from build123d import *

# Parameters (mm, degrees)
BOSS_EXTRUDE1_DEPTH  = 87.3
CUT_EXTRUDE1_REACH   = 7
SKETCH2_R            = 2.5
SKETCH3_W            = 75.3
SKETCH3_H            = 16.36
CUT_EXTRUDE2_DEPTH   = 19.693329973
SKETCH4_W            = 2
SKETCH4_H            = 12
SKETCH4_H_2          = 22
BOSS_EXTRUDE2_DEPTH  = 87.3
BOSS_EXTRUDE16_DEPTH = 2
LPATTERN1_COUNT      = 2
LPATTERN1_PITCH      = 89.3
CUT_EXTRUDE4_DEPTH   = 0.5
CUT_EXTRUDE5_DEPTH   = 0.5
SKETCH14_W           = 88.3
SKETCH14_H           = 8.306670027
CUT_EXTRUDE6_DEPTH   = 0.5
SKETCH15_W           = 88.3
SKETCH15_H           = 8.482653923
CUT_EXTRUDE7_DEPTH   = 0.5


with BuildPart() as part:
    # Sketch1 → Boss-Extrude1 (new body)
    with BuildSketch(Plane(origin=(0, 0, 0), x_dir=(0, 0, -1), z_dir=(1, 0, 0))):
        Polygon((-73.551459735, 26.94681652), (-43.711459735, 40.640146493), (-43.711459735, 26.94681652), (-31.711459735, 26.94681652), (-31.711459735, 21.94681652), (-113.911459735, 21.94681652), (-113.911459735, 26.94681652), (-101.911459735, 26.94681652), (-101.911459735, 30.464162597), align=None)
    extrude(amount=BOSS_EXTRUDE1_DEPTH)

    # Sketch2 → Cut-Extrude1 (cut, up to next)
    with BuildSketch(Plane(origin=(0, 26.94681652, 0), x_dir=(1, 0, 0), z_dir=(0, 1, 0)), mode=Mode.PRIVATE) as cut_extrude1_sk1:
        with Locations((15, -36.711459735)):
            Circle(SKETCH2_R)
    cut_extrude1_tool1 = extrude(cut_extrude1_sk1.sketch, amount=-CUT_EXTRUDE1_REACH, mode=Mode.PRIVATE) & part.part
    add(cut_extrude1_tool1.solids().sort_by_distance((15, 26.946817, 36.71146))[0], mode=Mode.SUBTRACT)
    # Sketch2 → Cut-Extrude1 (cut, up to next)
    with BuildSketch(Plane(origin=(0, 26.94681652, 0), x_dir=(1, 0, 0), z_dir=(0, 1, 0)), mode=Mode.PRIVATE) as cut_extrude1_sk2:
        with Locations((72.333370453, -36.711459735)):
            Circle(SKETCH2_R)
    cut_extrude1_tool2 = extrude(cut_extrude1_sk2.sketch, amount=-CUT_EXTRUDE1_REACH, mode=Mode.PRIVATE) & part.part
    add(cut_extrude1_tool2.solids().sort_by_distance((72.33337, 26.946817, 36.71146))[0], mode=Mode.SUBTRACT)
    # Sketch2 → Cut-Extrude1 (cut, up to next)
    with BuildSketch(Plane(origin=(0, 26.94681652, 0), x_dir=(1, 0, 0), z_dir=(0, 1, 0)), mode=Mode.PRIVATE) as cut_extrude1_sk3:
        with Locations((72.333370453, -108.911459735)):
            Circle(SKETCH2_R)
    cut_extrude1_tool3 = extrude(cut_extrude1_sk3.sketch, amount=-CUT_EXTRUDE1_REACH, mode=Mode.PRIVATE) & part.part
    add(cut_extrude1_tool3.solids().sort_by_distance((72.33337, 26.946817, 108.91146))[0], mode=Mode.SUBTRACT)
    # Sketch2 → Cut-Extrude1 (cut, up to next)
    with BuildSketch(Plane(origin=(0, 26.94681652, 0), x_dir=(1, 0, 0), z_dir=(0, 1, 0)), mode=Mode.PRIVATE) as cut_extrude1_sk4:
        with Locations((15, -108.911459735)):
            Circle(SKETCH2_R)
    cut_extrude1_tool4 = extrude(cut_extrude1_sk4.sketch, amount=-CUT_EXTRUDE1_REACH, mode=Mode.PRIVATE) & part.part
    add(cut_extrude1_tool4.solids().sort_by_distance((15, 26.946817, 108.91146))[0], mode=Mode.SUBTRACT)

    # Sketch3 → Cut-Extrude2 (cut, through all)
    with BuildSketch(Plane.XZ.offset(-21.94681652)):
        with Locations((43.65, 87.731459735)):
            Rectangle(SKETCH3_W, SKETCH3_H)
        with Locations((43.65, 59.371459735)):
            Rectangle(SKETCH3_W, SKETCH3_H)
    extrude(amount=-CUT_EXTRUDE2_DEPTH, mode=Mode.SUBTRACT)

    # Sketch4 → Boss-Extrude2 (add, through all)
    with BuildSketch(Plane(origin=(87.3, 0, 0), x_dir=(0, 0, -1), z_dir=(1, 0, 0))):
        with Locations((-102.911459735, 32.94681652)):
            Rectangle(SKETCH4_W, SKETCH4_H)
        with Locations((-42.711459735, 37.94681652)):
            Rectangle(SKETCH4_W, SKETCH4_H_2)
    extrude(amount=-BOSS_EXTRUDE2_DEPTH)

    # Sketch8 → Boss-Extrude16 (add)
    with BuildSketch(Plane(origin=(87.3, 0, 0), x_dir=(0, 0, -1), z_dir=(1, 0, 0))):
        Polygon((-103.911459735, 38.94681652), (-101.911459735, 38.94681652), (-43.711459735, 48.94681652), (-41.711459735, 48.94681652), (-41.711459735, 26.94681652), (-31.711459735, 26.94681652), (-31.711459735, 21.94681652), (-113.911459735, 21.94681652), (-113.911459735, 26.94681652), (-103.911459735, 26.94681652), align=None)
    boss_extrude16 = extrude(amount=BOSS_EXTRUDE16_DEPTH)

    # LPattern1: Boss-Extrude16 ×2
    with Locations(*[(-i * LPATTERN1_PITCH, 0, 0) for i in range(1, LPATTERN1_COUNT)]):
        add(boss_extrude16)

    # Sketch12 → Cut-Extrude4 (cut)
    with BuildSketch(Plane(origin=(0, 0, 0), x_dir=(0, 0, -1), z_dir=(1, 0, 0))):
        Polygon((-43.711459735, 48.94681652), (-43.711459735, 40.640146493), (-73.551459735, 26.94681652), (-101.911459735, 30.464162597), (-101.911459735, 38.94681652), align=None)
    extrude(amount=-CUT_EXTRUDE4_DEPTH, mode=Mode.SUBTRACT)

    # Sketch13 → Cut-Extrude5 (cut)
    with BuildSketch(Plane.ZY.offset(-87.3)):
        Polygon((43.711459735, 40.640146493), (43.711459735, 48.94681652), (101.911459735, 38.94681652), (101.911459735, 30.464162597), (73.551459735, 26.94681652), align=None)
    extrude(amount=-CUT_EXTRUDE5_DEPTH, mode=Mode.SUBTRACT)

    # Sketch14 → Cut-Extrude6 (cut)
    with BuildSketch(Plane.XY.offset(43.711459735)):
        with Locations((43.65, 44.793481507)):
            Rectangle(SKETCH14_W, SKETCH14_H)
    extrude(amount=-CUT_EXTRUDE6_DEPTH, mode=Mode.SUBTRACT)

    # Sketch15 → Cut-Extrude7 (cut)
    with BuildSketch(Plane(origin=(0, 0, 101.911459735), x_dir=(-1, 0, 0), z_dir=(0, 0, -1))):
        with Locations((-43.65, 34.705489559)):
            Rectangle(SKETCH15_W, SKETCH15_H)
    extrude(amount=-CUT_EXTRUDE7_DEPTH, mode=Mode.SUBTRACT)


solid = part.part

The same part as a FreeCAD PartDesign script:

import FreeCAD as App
import Part
import Sketcher
Q = App.Units.Quantity

doc = App.newDocument("Part")
body = doc.addObject("PartDesign::Body", "Body")

# Sketch on YZ plane
sketch1 = doc.addObject("Sketcher::SketchObject", "Sketch")
body.addObject(sketch1)
sketch1.AttachmentSupport = (doc.YZ_Plane, [""])
sketch1.MapMode = "FlatFace"
sketch1.addGeometry([
    Part.LineSegment(App.Vector(40.6, 43.7, 0), App.Vector(26.9, 73.6, 0)),  # 0
    Part.LineSegment(App.Vector(26.9, 73.6, 0), App.Vector(30.5, 101.9, 0)),  # 1
    Part.LineSegment(App.Vector(30.5, 101.9, 0), App.Vector(26.9, 101.9, 0)),  # 2
    Part.LineSegment(App.Vector(26.9, 101.9, 0), App.Vector(26.9, 113.9, 0)),  # 3
    Part.LineSegment(App.Vector(26.9, 113.9, 0), App.Vector(21.9, 113.9, 0)),  # 4
    Part.LineSegment(App.Vector(21.9, 113.9, 0), App.Vector(21.9, 31.7, 0)),  # 5
    Part.LineSegment(App.Vector(21.9, 31.7, 0), App.Vector(26.9, 31.7, 0)),  # 6
    Part.LineSegment(App.Vector(26.9, 31.7, 0), App.Vector(26.9, 43.7, 0)),  # 7
    Part.LineSegment(App.Vector(26.9, 43.7, 0), App.Vector(40.6, 43.7, 0)),  # 8
], False)
sketch1.addConstraint([
    Sketcher.Constraint("Coincident", 0, 2, 1, 1),
    Sketcher.Constraint("Coincident", 1, 2, 2, 1),
    Sketcher.Constraint("Coincident", 2, 2, 3, 1),
    Sketcher.Constraint("Coincident", 3, 2, 4, 1),
    Sketcher.Constraint("Coincident", 4, 2, 5, 1),
    Sketcher.Constraint("Coincident", 5, 2, 6, 1),
    Sketcher.Constraint("Coincident", 6, 2, 7, 1),
    Sketcher.Constraint("Coincident", 7, 2, 8, 1),
    Sketcher.Constraint("Coincident", 8, 2, 0, 1),
    Sketcher.Constraint("Horizontal", 2),
    Sketcher.Constraint("Vertical", 3),
    Sketcher.Constraint("Horizontal", 4),
    Sketcher.Constraint("Vertical", 5),
    Sketcher.Constraint("Horizontal", 6),
    Sketcher.Constraint("Vertical", 7),
    Sketcher.Constraint("Horizontal", 8),
    Sketcher.Constraint("Vertical", 0, 2, 2, 2),
    Sketcher.Constraint("Vertical", 3, 2, 6, 2),
    Sketcher.Constraint("Equal", 3, 7),
    Sketcher.Constraint("DistanceX", 4, 2, 4, 1, 5.0),
    Sketcher.Constraint("DistanceY", 3, 1, 3, 2, 12.0),
    Sketcher.Constraint("DistanceY", 5, 2, 5, 1, 82.2),
    Sketcher.Constraint("Angle", 0, Q("114.65 deg")),
    Sketcher.Constraint("Angle", 1, Q("82.93 deg")),
    Sketcher.Constraint("DistanceY", 0, 2, 1, 2, 28.36),
    Sketcher.Constraint("DistanceY", -1, 1, 0, 2, 73.55146),
    Sketcher.Constraint("DistanceX", -1, 1, 0, 2, 26.946817),
])
pad1 = doc.addObject("PartDesign::Pad", "Pad")
body.addObject(pad1)
pad1.Profile = sketch1
pad1.Length = 87.3

# Sketch on XZ plane
sketch2 = doc.addObject("Sketcher::SketchObject", "Sketch001")
body.addObject(sketch2)
sketch2.AttachmentSupport = (doc.XZ_Plane, [""])
sketch2.MapMode = "FlatFace"
sketch2.AttachmentOffset = App.Placement(App.Vector(0, 0, -26.946817), App.Rotation())
sketch2.addGeometry(Part.Circle(App.Vector(15, 36.7, 0), App.Vector(0, 0, 1), 2.5), False)
sketch2.addConstraint([
    Sketcher.Constraint("Diameter", 0, 5.0),
    Sketcher.Constraint("DistanceX", -1, 1, 0, 3, 15.0),
    Sketcher.Constraint("DistanceY", -1, 1, 0, 3, 36.71146),
])
pocket1 = doc.addObject("PartDesign::Pocket", "Pocket")
body.addObject(pocket1)
pocket1.Profile = sketch2
pocket1.Type = "UpToFirst"
pocket1.Reversed = True

# Sketch on XZ plane
sketch3 = doc.addObject("Sketcher::SketchObject", "Sketch002")
body.addObject(sketch3)
sketch3.AttachmentSupport = (doc.XZ_Plane, [""])
sketch3.MapMode = "FlatFace"
sketch3.AttachmentOffset = App.Placement(App.Vector(0, 0, -26.946817), App.Rotation())
sketch3.addGeometry(Part.Circle(App.Vector(72.3, 36.7, 0), App.Vector(0, 0, 1), 2.5), False)
sketch3.addConstraint([
    Sketcher.Constraint("Diameter", 0, 5.0),
    Sketcher.Constraint("DistanceX", -1, 1, 0, 3, 72.33337),
    Sketcher.Constraint("DistanceY", -1, 1, 0, 3, 36.71146),
])
pocket2 = doc.addObject("PartDesign::Pocket", "Pocket001")
body.addObject(pocket2)
pocket2.Profile = sketch3
pocket2.Type = "UpToFirst"
pocket2.Reversed = True

# Sketch on XZ plane
sketch4 = doc.addObject("Sketcher::SketchObject", "Sketch003")
body.addObject(sketch4)
sketch4.AttachmentSupport = (doc.XZ_Plane, [""])
sketch4.MapMode = "FlatFace"
sketch4.AttachmentOffset = App.Placement(App.Vector(0, 0, -26.946817), App.Rotation())
sketch4.addGeometry(Part.Circle(App.Vector(72.3, 108.9, 0), App.Vector(0, 0, 1), 2.5), False)
sketch4.addConstraint([
    Sketcher.Constraint("Diameter", 0, 5.0),
    Sketcher.Constraint("DistanceX", -1, 1, 0, 3, 72.33337),
    Sketcher.Constraint("DistanceY", -1, 1, 0, 3, 108.91146),
])
pocket3 = doc.addObject("PartDesign::Pocket", "Pocket002")
body.addObject(pocket3)
pocket3.Profile = sketch4
pocket3.Type = "UpToFirst"
pocket3.Reversed = True

# Sketch on XZ plane
sketch5 = doc.addObject("Sketcher::SketchObject", "Sketch004")
body.addObject(sketch5)
sketch5.AttachmentSupport = (doc.XZ_Plane, [""])
sketch5.MapMode = "FlatFace"
sketch5.AttachmentOffset = App.Placement(App.Vector(0, 0, -26.946817), App.Rotation())
sketch5.addGeometry(Part.Circle(App.Vector(15, 108.9, 0), App.Vector(0, 0, 1), 2.5), False)
sketch5.addConstraint([
    Sketcher.Constraint("Diameter", 0, 5.0),
    Sketcher.Constraint("DistanceX", -1, 1, 0, 3, 15.0),
    Sketcher.Constraint("DistanceY", -1, 1, 0, 3, 108.91146),
])
pocket4 = doc.addObject("PartDesign::Pocket", "Pocket003")
body.addObject(pocket4)
pocket4.Profile = sketch5
pocket4.Type = "UpToFirst"
pocket4.Reversed = True

# Sketch on XZ plane
sketch6 = doc.addObject("Sketcher::SketchObject", "Sketch005")
body.addObject(sketch6)
sketch6.AttachmentSupport = (doc.XZ_Plane, [""])
sketch6.MapMode = "FlatFace"
sketch6.AttachmentOffset = App.Placement(App.Vector(0, 0, -21.946817), App.Rotation())
sketch6.addGeometry([
    Part.LineSegment(App.Vector(6, 96, 0), App.Vector(6, 80, 0)),  # 0
    Part.LineSegment(App.Vector(6, 80, 0), App.Vector(81, 80, 0)),  # 1
    Part.LineSegment(App.Vector(81, 80, 0), App.Vector(81, 96, 0)),  # 2
    Part.LineSegment(App.Vector(81, 96, 0), App.Vector(6, 96, 0)),  # 3
    Part.LineSegment(App.Vector(6, 68, 0), App.Vector(6, 51, 0)),  # 4
    Part.LineSegment(App.Vector(6, 51, 0), App.Vector(81, 51, 0)),  # 5
    Part.LineSegment(App.Vector(81, 51, 0), App.Vector(81, 68, 0)),  # 6
    Part.LineSegment(App.Vector(81, 68, 0), App.Vector(6, 68, 0)),  # 7
], False)
sketch6.addConstraint([
    Sketcher.Constraint("Coincident", 0, 2, 1, 1),
    Sketcher.Constraint("Coincident", 1, 2, 2, 1),
    Sketcher.Constraint("Coincident", 2, 2, 3, 1),
    Sketcher.Constraint("Coincident", 3, 2, 0, 1),
    Sketcher.Constraint("Coincident", 4, 2, 5, 1),
    Sketcher.Constraint("Coincident", 5, 2, 6, 1),
    Sketcher.Constraint("Coincident", 6, 2, 7, 1),
    Sketcher.Constraint("Coincident", 7, 2, 4, 1),
    Sketcher.Constraint("Vertical", 0),
    Sketcher.Constraint("Horizontal", 1),
    Sketcher.Constraint("Vertical", 2),
    Sketcher.Constraint("Horizontal", 3),
    Sketcher.Constraint("Vertical", 4),
    Sketcher.Constraint("Horizontal", 5),
    Sketcher.Constraint("Vertical", 6),
    Sketcher.Constraint("Horizontal", 7),
    Sketcher.Constraint("Vertical", 3, 2, 4, 2),
    Sketcher.Constraint("Vertical", 2, 2, 5, 2),
    Sketcher.Constraint("Equal", 2, 4),
    Sketcher.Constraint("DistanceX", 1, 1, 1, 2, 75.3),
    Sketcher.Constraint("DistanceX", -1, 1, 0, 2, 6.0),
    Sketcher.Constraint("DistanceY", 6, 2, 1, 2, 12.0),
    Sketcher.Constraint("DistanceY", 0, 2, 0, 1, 16.36),
    Sketcher.Constraint("DistanceY", -1, 1, 0, 2, 79.55146),
])
pocket5 = doc.addObject("PartDesign::Pocket", "Pocket004")
body.addObject(pocket5)
pocket5.Profile = sketch6
pocket5.Type = "ThroughAll"

# Sketch on YZ plane
sketch7 = doc.addObject("Sketcher::SketchObject", "Sketch006")
body.addObject(sketch7)
sketch7.AttachmentSupport = (doc.YZ_Plane, [""])
sketch7.MapMode = "FlatFace"
sketch7.AttachmentOffset = App.Placement(App.Vector(0, 0, 87.3), App.Rotation())
sketch7.addGeometry([
    Part.LineSegment(App.Vector(38.9, 103.9, 0), App.Vector(26.9, 103.9, 0)),  # 0
    Part.LineSegment(App.Vector(26.9, 103.9, 0), App.Vector(26.9, 101.9, 0)),  # 1
    Part.LineSegment(App.Vector(26.9, 101.9, 0), App.Vector(38.9, 101.9, 0)),  # 2
    Part.LineSegment(App.Vector(38.9, 101.9, 0), App.Vector(38.9, 103.9, 0)),  # 3
    Part.LineSegment(App.Vector(48.9, 43.7, 0), App.Vector(26.9, 43.7, 0)),  # 4
    Part.LineSegment(App.Vector(26.9, 43.7, 0), App.Vector(26.9, 41.7, 0)),  # 5
    Part.LineSegment(App.Vector(26.9, 41.7, 0), App.Vector(48.9, 41.7, 0)),  # 6
    Part.LineSegment(App.Vector(48.9, 41.7, 0), App.Vector(48.9, 43.7, 0)),  # 7
], False)
sketch7.addConstraint([
    Sketcher.Constraint("Coincident", 0, 2, 1, 1),
    Sketcher.Constraint("Coincident", 1, 2, 2, 1),
    Sketcher.Constraint("Coincident", 2, 2, 3, 1),
    Sketcher.Constraint("Coincident", 3, 2, 0, 1),
    Sketcher.Constraint("Coincident", 4, 2, 5, 1),
    Sketcher.Constraint("Coincident", 5, 2, 6, 1),
    Sketcher.Constraint("Coincident", 6, 2, 7, 1),
    Sketcher.Constraint("Coincident", 7, 2, 4, 1),
    Sketcher.Constraint("Horizontal", 0),
    Sketcher.Constraint("Vertical", 1),
    Sketcher.Constraint("Horizontal", 2),
    Sketcher.Constraint("Vertical", 3),
    Sketcher.Constraint("Horizontal", 4),
    Sketcher.Constraint("Vertical", 5),
    Sketcher.Constraint("Horizontal", 6),
    Sketcher.Constraint("Vertical", 7),
    Sketcher.Constraint("Vertical", 1, 2, 4, 2),
    Sketcher.Constraint("Equal", 3, 5),
    Sketcher.Constraint("DistanceX", 0, 2, 0, 1, 12.0),
    Sketcher.Constraint("DistanceX", 4, 2, 4, 1, 22.0),
    Sketcher.Constraint("DistanceY", 1, 2, 1, 1, 2.0),
    Sketcher.Constraint("DistanceY", 4, 2, 1, 2, 58.2),
    Sketcher.Constraint("DistanceY", -1, 1, 0, 2, 103.91146),
    Sketcher.Constraint("DistanceX", -1, 1, 0, 2, 26.946817),
])
pad2 = doc.addObject("PartDesign::Pad", "Pad001")
body.addObject(pad2)
pad2.Profile = sketch7
pad2.Length = 87.3
pad2.Reversed = True

# Sketch on YZ plane
sketch8 = doc.addObject("Sketcher::SketchObject", "Sketch007")
body.addObject(sketch8)
sketch8.AttachmentSupport = (doc.YZ_Plane, [""])
sketch8.MapMode = "FlatFace"
sketch8.AttachmentOffset = App.Placement(App.Vector(0, 0, 87.3), App.Rotation())
sketch8.addGeometry([
    Part.LineSegment(App.Vector(38.9, 101.9, 0), App.Vector(38.9, 103.9, 0)),  # 0
    Part.LineSegment(App.Vector(38.9, 103.9, 0), App.Vector(26.9, 103.9, 0)),  # 1
    Part.LineSegment(App.Vector(26.9, 103.9, 0), App.Vector(26.9, 113.9, 0)),  # 2
    Part.LineSegment(App.Vector(26.9, 113.9, 0), App.Vector(21.9, 113.9, 0)),  # 3
    Part.LineSegment(App.Vector(21.9, 113.9, 0), App.Vector(21.9, 31.7, 0)),  # 4
    Part.LineSegment(App.Vector(21.9, 31.7, 0), App.Vector(26.9, 31.7, 0)),  # 5
    Part.LineSegment(App.Vector(26.9, 31.7, 0), App.Vector(26.9, 41.7, 0)),  # 6
    Part.LineSegment(App.Vector(26.9, 41.7, 0), App.Vector(48.9, 41.7, 0)),  # 7
    Part.LineSegment(App.Vector(48.9, 41.7, 0), App.Vector(48.9, 43.7, 0)),  # 8
    Part.LineSegment(App.Vector(48.9, 43.7, 0), App.Vector(38.9, 101.9, 0)),  # 9
], False)
sketch8.addConstraint([
    Sketcher.Constraint("Coincident", 0, 2, 1, 1),
    Sketcher.Constraint("Coincident", 1, 2, 2, 1),
    Sketcher.Constraint("Coincident", 2, 2, 3, 1),
    Sketcher.Constraint("Coincident", 3, 2, 4, 1),
    Sketcher.Constraint("Coincident", 4, 2, 5, 1),
    Sketcher.Constraint("Coincident", 5, 2, 6, 1),
    Sketcher.Constraint("Coincident", 6, 2, 7, 1),
    Sketcher.Constraint("Coincident", 7, 2, 8, 1),
    Sketcher.Constraint("Coincident", 8, 2, 9, 1),
    Sketcher.Constraint("Coincident", 9, 2, 0, 1),
    Sketcher.Constraint("Vertical", 0),
    Sketcher.Constraint("Horizontal", 1),
    Sketcher.Constraint("Vertical", 2),
    Sketcher.Constraint("Horizontal", 3),
    Sketcher.Constraint("Vertical", 4),
    Sketcher.Constraint("Horizontal", 5),
    Sketcher.Constraint("Vertical", 6),
    Sketcher.Constraint("Horizontal", 7),
    Sketcher.Constraint("Vertical", 8),
    Sketcher.Constraint("Vertical", 2, 2, 5, 2),
    Sketcher.Constraint("Equal", 2, 6),
    Sketcher.Constraint("Equal", 0, 8),
    Sketcher.Constraint("DistanceX", 1, 2, 1, 1, 12.0),
    Sketcher.Constraint("DistanceX", 3, 2, 3, 1, 5.0),
    Sketcher.Constraint("DistanceX", 7, 1, 7, 2, 22.0),
    Sketcher.Constraint("DistanceY", 0, 1, 0, 2, 2.0),
    Sketcher.Constraint("DistanceY", 2, 1, 2, 2, 10.0),
    Sketcher.Constraint("DistanceY", 4, 2, 4, 1, 82.2),
    Sketcher.Constraint("DistanceY", -1, 1, 0, 2, 103.91146),
    Sketcher.Constraint("DistanceX", -1, 1, 0, 2, 38.946817),
])
pad3 = doc.addObject("PartDesign::Pad", "Pad002")
body.addObject(pad3)
pad3.Profile = sketch8
pad3.Length = 2
doc.recompute()

linearpattern = doc.addObject("PartDesign::LinearPattern", "LinearPattern")
body.addObject(linearpattern)
linearpattern.Originals = [pad3]
linearpattern.Direction = (doc.X_Axis, [""])
linearpattern.Mode = "offset"
linearpattern.Offset = 89.3
linearpattern.Occurrences = 2
linearpattern.Reversed = True
body.Tip = linearpattern

# Sketch on YZ plane
sketch9 = doc.addObject("Sketcher::SketchObject", "Sketch008")
body.addObject(sketch9)
sketch9.AttachmentSupport = (doc.YZ_Plane, [""])
sketch9.MapMode = "FlatFace"
sketch9.addGeometry([
    Part.LineSegment(App.Vector(41, 44, 0), App.Vector(49, 44, 0)),  # 0
    Part.LineSegment(App.Vector(49, 44, 0), App.Vector(39, 102, 0)),  # 1
    Part.LineSegment(App.Vector(39, 102, 0), App.Vector(30, 102, 0)),  # 2
    Part.LineSegment(App.Vector(30, 102, 0), App.Vector(27, 74, 0)),  # 3
    Part.LineSegment(App.Vector(27, 74, 0), App.Vector(41, 44, 0)),  # 4
], False)
sketch9.addConstraint([
    Sketcher.Constraint("Coincident", 0, 2, 1, 1),
    Sketcher.Constraint("Coincident", 1, 2, 2, 1),
    Sketcher.Constraint("Coincident", 2, 2, 3, 1),
    Sketcher.Constraint("Coincident", 3, 2, 4, 1),
    Sketcher.Constraint("Coincident", 4, 2, 0, 1),
    Sketcher.Constraint("Horizontal", 0),
    Sketcher.Constraint("Horizontal", 2),
    Sketcher.Constraint("DistanceX", 1, 2, 0, 2, 10.0),
    Sketcher.Constraint("DistanceX", 3, 2, 1, 2, 12.0),
    Sketcher.Constraint("Angle", 3, Q("-97.07 deg")),
    Sketcher.Constraint("Angle", 4, Q("-65.35 deg")),
    Sketcher.Constraint("DistanceY", 0, 2, 1, 2, 58.2),
    Sketcher.Constraint("DistanceY", 3, 2, 2, 2, 28.36),
    Sketcher.Constraint("DistanceY", -1, 1, 0, 2, 43.71146),
    Sketcher.Constraint("DistanceX", -1, 1, 0, 2, 48.946817),
])
pocket6 = doc.addObject("PartDesign::Pocket", "Pocket005")
body.addObject(pocket6)
pocket6.Profile = sketch9
pocket6.Length = 0.5

# Sketch on YZ plane
sketch10 = doc.addObject("Sketcher::SketchObject", "Sketch009")
body.addObject(sketch10)
sketch10.AttachmentSupport = (doc.YZ_Plane, [""])
sketch10.MapMode = "FlatFace"
sketch10.AttachmentOffset = App.Placement(App.Vector(0, 0, 87.3), App.Rotation())
sketch10.addGeometry([
    Part.LineSegment(App.Vector(49, 44, 0), App.Vector(41, 44, 0)),  # 0
    Part.LineSegment(App.Vector(41, 44, 0), App.Vector(27, 74, 0)),  # 1
    Part.LineSegment(App.Vector(27, 74, 0), App.Vector(30, 102, 0)),  # 2
    Part.LineSegment(App.Vector(30, 102, 0), App.Vector(39, 102, 0)),  # 3
    Part.LineSegment(App.Vector(39, 102, 0), App.Vector(49, 44, 0)),  # 4
], False)
sketch10.addConstraint([
    Sketcher.Constraint("Coincident", 0, 2, 1, 1),
    Sketcher.Constraint("Coincident", 1, 2, 2, 1),
    Sketcher.Constraint("Coincident", 2, 2, 3, 1),
    Sketcher.Constraint("Coincident", 3, 2, 4, 1),
    Sketcher.Constraint("Coincident", 4, 2, 0, 1),
    Sketcher.Constraint("Horizontal", 0),
    Sketcher.Constraint("Horizontal", 3),
    Sketcher.Constraint("DistanceX", 1, 2, 3, 2, 12.0),
    Sketcher.Constraint("DistanceX", 1, 2, 4, 2, 22.0),
    Sketcher.Constraint("Angle", 1, Q("114.65 deg")),
    Sketcher.Constraint("Angle", 2, Q("82.93 deg")),
    Sketcher.Constraint("DistanceY", 0, 2, 2, 2, 58.2),
    Sketcher.Constraint("DistanceY", 0, 2, 1, 2, 29.84),
    Sketcher.Constraint("DistanceY", -1, 1, 0, 2, 43.71146),
    Sketcher.Constraint("DistanceX", -1, 1, 0, 2, 40.640146),
])
pocket7 = doc.addObject("PartDesign::Pocket", "Pocket006")
body.addObject(pocket7)
pocket7.Profile = sketch10
pocket7.Length = 0.5
pocket7.Reversed = True

# Sketch on XY plane
sketch11 = doc.addObject("Sketcher::SketchObject", "Sketch010")
body.addObject(sketch11)
sketch11.AttachmentSupport = (doc.XY_Plane, [""])
sketch11.MapMode = "FlatFace"
sketch11.AttachmentOffset = App.Placement(App.Vector(0, 0, 43.71146), App.Rotation())
sketch11.addGeometry([
    Part.LineSegment(App.Vector(0, 49, 0), App.Vector(0, 41, 0)),
    Part.LineSegment(App.Vector(0, 41, 0), App.Vector(88, 41, 0)),
    Part.LineSegment(App.Vector(88, 41, 0), App.Vector(88, 49, 0)),
    Part.LineSegment(App.Vector(88, 49, 0), App.Vector(0, 49, 0)),
], False)
sketch11.addConstraint([
    Sketcher.Constraint("Coincident", 0, 2, 1, 1),
    Sketcher.Constraint("Coincident", 1, 2, 2, 1),
    Sketcher.Constraint("Coincident", 2, 2, 3, 1),
    Sketcher.Constraint("Coincident", 3, 2, 0, 1),
    Sketcher.Constraint("Vertical", 0),
    Sketcher.Constraint("Horizontal", 1),
    Sketcher.Constraint("Vertical", 2),
    Sketcher.Constraint("Horizontal", 3),
    Sketcher.Constraint("DistanceX", 1, 1, 1, 2, 88.3),
    Sketcher.Constraint("DistanceX", 0, 2, -1, 1, 0.5),
    Sketcher.Constraint("DistanceY", 0, 2, 0, 1, 8.30667),
    Sketcher.Constraint("DistanceY", -1, 1, 0, 2, 40.640146),
])
pocket8 = doc.addObject("PartDesign::Pocket", "Pocket007")
body.addObject(pocket8)
pocket8.Profile = sketch11
pocket8.Length = 0.5

# Sketch on XY plane
sketch12 = doc.addObject("Sketcher::SketchObject", "Sketch011")
body.addObject(sketch12)
sketch12.AttachmentSupport = (doc.XY_Plane, [""])
sketch12.MapMode = "FlatFace"
sketch12.AttachmentOffset = App.Placement(App.Vector(0, 0, 101.91146), App.Rotation())
sketch12.addGeometry([
    Part.LineSegment(App.Vector(88, 39, 0), App.Vector(88, 30, 0)),
    Part.LineSegment(App.Vector(88, 30, 0), App.Vector(0, 30, 0)),
    Part.LineSegment(App.Vector(0, 30, 0), App.Vector(0, 39, 0)),
    Part.LineSegment(App.Vector(0, 39, 0), App.Vector(88, 39, 0)),
], False)
sketch12.addConstraint([
    Sketcher.Constraint("Coincident", 0, 2, 1, 1),
    Sketcher.Constraint("Coincident", 1, 2, 2, 1),
    Sketcher.Constraint("Coincident", 2, 2, 3, 1),
    Sketcher.Constraint("Coincident", 3, 2, 0, 1),
    Sketcher.Constraint("Vertical", 0),
    Sketcher.Constraint("Horizontal", 1),
    Sketcher.Constraint("Vertical", 2),
    Sketcher.Constraint("Horizontal", 3),
    Sketcher.Constraint("DistanceX", 1, 2, 1, 1, 88.3),
    Sketcher.Constraint("DistanceX", -1, 1, 0, 2, 87.8),
    Sketcher.Constraint("DistanceY", 0, 2, 0, 1, 8.482654),
    Sketcher.Constraint("DistanceY", -1, 1, 0, 2, 30.464163),
])
pocket9 = doc.addObject("PartDesign::Pocket", "Pocket008")
body.addObject(pocket9)
pocket9.Profile = sketch12
pocket9.Length = 0.5
pocket9.Reversed = True

doc.recompute()
